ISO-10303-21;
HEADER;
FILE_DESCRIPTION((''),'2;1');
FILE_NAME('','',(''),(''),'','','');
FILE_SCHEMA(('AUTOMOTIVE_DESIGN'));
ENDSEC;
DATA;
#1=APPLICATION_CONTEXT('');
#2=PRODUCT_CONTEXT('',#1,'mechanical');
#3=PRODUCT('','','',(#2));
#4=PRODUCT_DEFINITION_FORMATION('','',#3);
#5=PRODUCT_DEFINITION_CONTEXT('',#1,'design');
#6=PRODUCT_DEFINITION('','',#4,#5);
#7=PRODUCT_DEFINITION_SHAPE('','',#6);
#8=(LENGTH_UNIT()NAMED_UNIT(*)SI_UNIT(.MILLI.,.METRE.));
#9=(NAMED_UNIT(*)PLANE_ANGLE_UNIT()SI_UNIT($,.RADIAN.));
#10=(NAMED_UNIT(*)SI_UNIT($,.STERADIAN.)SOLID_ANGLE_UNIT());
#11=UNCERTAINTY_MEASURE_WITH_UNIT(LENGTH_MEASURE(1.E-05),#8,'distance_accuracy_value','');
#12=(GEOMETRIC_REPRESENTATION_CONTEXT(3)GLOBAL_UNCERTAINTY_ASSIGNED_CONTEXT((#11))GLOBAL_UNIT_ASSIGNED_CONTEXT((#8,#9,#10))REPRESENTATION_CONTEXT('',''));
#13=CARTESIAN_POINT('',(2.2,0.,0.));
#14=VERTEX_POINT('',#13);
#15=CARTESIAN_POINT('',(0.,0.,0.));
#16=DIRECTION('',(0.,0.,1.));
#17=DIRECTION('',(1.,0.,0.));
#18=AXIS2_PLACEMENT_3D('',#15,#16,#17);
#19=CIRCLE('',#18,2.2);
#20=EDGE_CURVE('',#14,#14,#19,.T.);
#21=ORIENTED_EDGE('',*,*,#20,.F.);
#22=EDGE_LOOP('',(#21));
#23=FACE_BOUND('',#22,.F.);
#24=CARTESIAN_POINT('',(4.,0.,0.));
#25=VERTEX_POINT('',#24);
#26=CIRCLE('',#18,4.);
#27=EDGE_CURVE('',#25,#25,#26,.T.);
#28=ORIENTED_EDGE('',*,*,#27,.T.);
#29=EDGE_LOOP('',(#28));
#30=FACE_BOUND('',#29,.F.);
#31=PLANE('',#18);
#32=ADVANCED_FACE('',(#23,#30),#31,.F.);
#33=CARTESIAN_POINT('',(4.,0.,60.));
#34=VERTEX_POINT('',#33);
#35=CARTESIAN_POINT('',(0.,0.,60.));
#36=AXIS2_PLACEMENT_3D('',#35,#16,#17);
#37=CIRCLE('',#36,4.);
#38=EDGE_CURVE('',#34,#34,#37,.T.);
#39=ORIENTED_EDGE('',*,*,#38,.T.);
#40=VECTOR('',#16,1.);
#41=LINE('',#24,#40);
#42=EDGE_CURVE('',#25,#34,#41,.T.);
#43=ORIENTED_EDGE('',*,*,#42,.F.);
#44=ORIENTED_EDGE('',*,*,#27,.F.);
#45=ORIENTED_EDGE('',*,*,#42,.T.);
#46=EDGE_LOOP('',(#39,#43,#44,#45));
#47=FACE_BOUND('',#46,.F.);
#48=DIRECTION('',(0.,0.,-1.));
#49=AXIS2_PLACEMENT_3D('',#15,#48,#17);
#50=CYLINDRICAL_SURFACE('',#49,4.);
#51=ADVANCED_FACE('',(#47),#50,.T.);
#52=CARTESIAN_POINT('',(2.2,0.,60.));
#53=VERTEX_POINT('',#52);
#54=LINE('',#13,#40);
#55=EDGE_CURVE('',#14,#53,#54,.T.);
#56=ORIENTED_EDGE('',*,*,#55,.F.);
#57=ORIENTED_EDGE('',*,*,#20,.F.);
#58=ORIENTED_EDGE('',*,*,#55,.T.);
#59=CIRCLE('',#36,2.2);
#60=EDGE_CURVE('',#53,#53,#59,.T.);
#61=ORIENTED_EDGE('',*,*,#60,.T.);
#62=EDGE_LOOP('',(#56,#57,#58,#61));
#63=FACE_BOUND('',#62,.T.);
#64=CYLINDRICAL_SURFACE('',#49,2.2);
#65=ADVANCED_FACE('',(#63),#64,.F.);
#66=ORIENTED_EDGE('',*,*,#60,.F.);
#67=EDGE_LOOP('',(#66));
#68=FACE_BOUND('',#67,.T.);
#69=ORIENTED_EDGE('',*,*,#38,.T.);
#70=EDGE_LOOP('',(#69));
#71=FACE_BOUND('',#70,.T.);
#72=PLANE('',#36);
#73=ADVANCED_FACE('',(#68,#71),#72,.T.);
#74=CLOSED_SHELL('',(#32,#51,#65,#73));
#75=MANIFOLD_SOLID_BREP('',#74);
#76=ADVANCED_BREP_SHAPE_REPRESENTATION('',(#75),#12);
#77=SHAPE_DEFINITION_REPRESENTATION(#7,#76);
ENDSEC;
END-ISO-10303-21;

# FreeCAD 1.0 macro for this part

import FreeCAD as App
import Part
import Sketcher
Q = App.Units.Quantity

doc = App.newDocument("Part")
params = doc.addObject("Spreadsheet::Sheet", "Params")
for row, (alias, value) in enumerate([
    ("sketch1_diameter", "8 mm"),
    ("sketch1_diameter2", "4.4 mm"),
    ("pad1_length", "60 mm"),
], start=1):
    params.set(f"A{row}", alias)
    params.set(f"B{row}", "=" + value)
    params.setAlias(f"B{row}", alias)

body = doc.addObject("PartDesign::Body", "Body")

# Sketch on XY plane
sketch1 = doc.addObject("Sketcher::SketchObject", "Sketch")
body.addObject(sketch1)
sketch1.AttachmentSupport = (doc.XY_Plane, [""])
sketch1.MapMode = "FlatFace"
sketch1.addGeometry([
    Part.Circle(App.Vector(0, 0, 0), App.Vector(0, 0, 1), 4),
    Part.Circle(App.Vector(0, 0, 0), App.Vector(0, 0, 1), 2.2),
], False)
sketch1.addConstraint([
    Sketcher.Constraint("Coincident", 0, 3, -1, 1),
    Sketcher.Constraint("Coincident", 1, 3, -1, 1),
    Sketcher.Constraint("Diameter", 0, Q("8 mm")),
    Sketcher.Constraint("Diameter", 1, Q("4.4 mm")),
])
sketch1.setExpression("Constraints[2]", "Params.sketch1_diameter")
sketch1.setExpression("Constraints[3]", "Params.sketch1_diameter2")
pad1 = doc.addObject("PartDesign::Pad", "Pad")
body.addObject(pad1)
pad1.Profile = sketch1
pad1.setExpression("Length", "Params.pad1_length")

doc.recompute()
